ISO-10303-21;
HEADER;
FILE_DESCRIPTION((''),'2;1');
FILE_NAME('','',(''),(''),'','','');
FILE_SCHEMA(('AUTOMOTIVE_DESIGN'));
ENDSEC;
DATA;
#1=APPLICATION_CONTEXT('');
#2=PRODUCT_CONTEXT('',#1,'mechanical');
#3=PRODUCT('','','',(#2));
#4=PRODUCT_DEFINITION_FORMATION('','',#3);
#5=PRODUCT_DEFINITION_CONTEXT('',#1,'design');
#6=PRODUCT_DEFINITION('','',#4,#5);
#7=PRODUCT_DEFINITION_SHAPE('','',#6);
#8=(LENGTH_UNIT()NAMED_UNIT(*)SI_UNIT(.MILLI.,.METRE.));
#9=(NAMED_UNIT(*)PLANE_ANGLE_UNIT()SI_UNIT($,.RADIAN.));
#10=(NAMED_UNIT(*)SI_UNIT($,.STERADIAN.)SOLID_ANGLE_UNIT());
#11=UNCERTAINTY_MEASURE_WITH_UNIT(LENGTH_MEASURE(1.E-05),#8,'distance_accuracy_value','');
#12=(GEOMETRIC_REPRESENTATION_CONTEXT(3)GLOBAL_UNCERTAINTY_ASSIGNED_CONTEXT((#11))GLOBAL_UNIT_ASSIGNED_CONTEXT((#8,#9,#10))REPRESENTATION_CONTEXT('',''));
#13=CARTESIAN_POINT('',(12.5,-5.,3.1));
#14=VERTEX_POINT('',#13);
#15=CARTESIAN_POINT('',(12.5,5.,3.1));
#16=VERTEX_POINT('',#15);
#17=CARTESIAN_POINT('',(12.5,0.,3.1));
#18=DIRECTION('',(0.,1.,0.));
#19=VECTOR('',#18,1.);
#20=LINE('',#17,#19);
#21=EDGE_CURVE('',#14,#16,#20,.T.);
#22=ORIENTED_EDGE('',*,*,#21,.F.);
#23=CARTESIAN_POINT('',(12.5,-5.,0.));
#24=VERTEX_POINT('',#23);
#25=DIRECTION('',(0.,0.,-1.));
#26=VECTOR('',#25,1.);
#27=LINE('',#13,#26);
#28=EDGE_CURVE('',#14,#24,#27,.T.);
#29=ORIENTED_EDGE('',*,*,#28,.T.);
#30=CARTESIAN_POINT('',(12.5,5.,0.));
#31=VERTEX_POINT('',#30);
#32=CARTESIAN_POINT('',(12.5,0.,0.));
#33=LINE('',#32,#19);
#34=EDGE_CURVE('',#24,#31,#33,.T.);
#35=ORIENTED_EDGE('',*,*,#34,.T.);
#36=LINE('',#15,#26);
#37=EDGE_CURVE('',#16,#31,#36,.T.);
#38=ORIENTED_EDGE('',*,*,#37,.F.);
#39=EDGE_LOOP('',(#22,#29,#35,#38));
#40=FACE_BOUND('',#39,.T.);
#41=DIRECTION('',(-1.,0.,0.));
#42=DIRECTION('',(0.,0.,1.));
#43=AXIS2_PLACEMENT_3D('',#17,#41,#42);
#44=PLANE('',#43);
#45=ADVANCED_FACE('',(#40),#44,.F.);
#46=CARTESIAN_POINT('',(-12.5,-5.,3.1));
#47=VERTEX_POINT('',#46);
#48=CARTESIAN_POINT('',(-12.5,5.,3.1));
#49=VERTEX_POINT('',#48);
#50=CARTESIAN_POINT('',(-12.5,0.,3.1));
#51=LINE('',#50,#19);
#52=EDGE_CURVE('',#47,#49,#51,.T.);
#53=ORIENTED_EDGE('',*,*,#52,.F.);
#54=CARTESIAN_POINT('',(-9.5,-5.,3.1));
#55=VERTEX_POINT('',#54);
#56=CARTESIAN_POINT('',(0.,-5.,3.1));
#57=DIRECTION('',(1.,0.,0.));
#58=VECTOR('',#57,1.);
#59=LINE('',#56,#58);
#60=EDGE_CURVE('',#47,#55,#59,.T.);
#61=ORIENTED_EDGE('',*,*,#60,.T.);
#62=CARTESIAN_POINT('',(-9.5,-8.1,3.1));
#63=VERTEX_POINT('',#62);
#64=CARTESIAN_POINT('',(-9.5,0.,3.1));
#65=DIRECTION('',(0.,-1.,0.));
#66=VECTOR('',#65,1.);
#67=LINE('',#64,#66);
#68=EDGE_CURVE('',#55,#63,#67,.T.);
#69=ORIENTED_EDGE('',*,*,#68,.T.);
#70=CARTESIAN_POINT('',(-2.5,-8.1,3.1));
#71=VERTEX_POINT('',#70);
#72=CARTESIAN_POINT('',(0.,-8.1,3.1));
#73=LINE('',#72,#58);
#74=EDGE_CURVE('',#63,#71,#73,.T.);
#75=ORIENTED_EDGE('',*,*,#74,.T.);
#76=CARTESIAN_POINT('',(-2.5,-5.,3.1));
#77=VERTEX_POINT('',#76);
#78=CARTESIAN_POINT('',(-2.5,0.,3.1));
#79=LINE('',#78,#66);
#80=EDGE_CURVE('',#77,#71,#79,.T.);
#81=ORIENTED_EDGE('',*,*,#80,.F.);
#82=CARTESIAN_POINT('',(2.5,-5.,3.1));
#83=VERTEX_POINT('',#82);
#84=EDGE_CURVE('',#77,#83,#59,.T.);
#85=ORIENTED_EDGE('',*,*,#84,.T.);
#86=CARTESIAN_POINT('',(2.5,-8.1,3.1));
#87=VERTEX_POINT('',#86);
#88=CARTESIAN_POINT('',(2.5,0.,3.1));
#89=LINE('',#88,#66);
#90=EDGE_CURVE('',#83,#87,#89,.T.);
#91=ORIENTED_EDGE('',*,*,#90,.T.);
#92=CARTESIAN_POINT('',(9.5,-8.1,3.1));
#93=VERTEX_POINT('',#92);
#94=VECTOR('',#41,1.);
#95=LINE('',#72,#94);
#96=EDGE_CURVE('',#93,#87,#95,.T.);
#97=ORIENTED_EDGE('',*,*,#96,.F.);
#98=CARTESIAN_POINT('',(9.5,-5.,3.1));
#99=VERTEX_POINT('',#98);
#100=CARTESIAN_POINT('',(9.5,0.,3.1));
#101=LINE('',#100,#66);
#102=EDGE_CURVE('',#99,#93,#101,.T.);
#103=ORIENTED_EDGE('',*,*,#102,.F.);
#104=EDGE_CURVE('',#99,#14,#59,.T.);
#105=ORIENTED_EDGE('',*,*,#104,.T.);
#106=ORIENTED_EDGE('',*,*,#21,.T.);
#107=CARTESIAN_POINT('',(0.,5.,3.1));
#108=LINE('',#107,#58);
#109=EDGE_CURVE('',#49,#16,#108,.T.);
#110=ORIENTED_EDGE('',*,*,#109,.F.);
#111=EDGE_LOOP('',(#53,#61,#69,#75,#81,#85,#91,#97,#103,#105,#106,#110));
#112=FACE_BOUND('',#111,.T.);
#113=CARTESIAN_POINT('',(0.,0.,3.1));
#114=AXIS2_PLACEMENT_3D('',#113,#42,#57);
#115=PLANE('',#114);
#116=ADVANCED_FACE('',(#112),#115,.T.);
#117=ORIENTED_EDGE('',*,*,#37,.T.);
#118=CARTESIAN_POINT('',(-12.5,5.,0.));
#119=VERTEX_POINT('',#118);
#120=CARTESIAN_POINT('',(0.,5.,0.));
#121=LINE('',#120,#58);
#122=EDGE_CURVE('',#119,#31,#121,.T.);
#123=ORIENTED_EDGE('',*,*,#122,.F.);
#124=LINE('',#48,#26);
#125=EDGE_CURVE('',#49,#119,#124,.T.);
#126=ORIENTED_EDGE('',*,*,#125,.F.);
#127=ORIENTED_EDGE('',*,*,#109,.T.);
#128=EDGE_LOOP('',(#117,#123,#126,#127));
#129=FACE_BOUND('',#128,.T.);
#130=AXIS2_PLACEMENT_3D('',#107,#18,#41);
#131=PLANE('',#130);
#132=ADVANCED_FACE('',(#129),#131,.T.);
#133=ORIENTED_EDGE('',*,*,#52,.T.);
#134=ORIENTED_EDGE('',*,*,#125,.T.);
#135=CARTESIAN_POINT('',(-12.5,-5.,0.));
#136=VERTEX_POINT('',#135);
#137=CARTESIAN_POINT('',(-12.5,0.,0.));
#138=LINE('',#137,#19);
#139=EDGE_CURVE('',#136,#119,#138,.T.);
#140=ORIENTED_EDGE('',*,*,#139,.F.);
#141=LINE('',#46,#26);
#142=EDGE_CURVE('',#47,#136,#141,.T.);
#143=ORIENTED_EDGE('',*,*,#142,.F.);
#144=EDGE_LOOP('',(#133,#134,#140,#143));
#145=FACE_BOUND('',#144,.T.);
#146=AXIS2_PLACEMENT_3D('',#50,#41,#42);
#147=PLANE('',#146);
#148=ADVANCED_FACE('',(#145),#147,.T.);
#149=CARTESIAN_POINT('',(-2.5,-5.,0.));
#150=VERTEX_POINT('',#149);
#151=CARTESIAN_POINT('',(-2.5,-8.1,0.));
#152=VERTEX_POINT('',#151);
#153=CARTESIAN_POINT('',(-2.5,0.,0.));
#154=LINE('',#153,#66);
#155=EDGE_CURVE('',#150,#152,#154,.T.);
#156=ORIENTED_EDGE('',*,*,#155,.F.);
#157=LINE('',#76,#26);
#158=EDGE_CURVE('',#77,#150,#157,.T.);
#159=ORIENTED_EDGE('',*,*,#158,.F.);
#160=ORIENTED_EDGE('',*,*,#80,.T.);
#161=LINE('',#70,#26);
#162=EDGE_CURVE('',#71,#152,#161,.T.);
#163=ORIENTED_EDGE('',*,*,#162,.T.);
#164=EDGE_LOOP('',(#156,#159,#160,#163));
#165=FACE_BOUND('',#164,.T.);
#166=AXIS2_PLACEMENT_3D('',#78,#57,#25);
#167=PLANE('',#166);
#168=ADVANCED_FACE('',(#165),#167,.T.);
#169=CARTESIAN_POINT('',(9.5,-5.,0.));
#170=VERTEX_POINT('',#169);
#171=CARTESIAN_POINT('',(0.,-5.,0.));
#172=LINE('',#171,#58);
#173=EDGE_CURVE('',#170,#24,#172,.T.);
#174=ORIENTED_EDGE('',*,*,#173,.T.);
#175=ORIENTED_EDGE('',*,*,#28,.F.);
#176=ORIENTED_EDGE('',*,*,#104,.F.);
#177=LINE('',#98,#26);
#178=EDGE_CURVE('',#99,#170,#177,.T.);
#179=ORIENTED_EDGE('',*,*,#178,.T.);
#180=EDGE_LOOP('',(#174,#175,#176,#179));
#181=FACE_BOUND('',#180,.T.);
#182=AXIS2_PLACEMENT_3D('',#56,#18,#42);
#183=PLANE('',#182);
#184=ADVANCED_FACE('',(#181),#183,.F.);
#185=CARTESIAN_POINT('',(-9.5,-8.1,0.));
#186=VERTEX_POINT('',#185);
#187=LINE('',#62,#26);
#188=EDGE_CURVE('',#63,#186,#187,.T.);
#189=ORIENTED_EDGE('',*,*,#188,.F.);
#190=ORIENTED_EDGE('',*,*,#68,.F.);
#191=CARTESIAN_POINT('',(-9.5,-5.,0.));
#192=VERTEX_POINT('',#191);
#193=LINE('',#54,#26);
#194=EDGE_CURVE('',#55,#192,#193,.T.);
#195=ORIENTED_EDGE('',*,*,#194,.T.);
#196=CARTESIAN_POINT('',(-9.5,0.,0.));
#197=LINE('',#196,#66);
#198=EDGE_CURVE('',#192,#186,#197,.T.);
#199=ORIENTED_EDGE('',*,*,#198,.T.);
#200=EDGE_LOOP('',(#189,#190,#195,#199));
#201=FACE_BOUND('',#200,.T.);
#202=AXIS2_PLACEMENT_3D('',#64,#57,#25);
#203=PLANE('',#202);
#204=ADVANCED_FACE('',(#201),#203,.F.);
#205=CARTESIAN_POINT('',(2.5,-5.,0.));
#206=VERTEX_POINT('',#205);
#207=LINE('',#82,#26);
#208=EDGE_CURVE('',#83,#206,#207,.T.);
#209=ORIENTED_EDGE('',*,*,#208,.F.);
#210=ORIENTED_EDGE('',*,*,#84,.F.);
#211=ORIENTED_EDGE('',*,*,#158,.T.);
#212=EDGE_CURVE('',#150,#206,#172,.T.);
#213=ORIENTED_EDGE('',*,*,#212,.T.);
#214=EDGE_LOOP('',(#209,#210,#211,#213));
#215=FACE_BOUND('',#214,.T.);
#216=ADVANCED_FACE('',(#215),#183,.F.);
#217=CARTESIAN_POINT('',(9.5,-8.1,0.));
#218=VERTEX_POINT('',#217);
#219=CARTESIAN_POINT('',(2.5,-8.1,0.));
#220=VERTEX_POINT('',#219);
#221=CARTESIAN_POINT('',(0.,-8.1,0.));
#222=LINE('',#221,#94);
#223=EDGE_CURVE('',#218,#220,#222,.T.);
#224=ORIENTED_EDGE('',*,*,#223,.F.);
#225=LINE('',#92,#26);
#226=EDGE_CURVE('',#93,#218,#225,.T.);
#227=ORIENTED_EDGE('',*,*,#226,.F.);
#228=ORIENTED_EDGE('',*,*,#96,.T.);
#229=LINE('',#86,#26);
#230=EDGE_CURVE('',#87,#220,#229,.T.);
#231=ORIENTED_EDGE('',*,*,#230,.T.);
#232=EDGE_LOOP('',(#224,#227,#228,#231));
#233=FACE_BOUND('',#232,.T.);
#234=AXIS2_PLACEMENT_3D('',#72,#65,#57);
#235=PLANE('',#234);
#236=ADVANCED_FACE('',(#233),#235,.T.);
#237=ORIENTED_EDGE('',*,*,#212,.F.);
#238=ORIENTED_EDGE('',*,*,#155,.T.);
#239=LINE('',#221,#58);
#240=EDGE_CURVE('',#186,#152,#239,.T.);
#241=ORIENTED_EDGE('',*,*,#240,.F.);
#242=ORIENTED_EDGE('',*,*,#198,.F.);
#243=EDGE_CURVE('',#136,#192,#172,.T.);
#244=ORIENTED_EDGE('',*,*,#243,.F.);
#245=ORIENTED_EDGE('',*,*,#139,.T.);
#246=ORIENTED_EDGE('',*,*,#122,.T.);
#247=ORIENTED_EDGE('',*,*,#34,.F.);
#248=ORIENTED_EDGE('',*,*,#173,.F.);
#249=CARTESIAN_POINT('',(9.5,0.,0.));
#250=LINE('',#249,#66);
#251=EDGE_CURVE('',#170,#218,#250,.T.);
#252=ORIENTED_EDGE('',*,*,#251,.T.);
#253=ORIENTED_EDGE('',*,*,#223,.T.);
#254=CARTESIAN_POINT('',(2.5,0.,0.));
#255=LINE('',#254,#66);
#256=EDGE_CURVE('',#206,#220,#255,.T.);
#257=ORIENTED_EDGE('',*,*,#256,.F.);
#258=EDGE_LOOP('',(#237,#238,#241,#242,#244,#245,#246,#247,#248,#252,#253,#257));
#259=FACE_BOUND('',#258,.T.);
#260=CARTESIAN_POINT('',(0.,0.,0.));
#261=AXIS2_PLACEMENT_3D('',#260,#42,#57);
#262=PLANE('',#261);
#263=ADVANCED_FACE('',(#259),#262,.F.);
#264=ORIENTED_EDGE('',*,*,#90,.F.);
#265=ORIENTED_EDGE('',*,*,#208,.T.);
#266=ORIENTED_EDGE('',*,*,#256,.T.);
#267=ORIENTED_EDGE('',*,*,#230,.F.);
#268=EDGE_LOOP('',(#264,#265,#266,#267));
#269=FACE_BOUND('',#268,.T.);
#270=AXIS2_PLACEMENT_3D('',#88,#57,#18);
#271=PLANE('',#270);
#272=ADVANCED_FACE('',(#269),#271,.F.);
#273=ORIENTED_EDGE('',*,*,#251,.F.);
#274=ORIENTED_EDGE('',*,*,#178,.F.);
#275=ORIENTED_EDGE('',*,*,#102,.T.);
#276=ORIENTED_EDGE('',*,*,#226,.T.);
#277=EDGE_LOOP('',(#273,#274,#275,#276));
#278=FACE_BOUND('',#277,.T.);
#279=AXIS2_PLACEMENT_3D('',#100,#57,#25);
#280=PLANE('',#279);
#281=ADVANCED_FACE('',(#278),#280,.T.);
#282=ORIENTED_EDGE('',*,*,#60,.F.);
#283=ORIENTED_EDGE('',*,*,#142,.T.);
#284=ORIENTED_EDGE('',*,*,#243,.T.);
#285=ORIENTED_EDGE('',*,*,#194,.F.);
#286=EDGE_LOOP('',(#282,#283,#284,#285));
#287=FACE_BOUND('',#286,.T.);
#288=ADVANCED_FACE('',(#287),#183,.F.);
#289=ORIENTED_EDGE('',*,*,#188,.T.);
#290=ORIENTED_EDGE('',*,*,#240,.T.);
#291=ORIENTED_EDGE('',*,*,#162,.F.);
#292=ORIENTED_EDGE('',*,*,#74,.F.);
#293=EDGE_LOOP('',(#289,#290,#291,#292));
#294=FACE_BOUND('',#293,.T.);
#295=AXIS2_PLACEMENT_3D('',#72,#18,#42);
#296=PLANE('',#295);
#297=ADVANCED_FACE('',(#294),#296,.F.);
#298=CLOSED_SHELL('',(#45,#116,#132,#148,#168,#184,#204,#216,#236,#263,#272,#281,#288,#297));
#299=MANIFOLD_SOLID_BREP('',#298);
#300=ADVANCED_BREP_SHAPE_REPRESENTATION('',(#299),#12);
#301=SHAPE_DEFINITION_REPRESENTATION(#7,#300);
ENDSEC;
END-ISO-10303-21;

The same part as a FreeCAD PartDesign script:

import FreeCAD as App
import Part
import Sketcher
from FreeCAD import Vector
Q = App.Units.Quantity

doc = App.newDocument("Part")
body = doc.addObject("PartDesign::Body", "Body")

# Sketch on XY plane
sketch1 = doc.addObject("Sketcher::SketchObject", "Sketch")
body.addObject(sketch1)
sketch1.AttachmentSupport = (doc.XY_Plane, [""])
sketch1.MapMode = "FlatFace"
sketch1.addGeometry(Part.LineSegment(Vector(-12.5, 5, 0), Vector(-12.5, -5, 0)), False)
sketch1.addGeometry(Part.LineSegment(Vector(-12.5, -5, 0), Vector(-9.5, -5, 0)), False)
sketch1.addGeometry(Part.LineSegment(Vector(-9.5, -5, 0), Vector(-9.5, -8.1, 0)), False)
sketch1.addGeometry(Part.LineSegment(Vector(-9.5, -8.1, 0), Vector(-2.5, -8.1, 0)), False)
sketch1.addGeometry(Part.LineSegment(Vector(-2.5, -8.1, 0), Vector(-2.5, -5, 0)), False)
sketch1.addGeometry(Part.LineSegment(Vector(-2.5, -5, 0), Vector(2.5, -5, 0)), False)
sketch1.addGeometry(Part.LineSegment(Vector(2.5, -5, 0), Vector(2.5, -8.1, 0)), False)
sketch1.addGeometry(Part.LineSegment(Vector(2.5, -8.1, 0), Vector(9.5, -8.1, 0)), False)
sketch1.addGeometry(Part.LineSegment(Vector(9.5, -8.1, 0), Vector(9.5, -5, 0)), False)
sketch1.addGeometry(Part.LineSegment(Vector(9.5, -5, 0), Vector(12.5, -5, 0)), False)
sketch1.addGeometry(Part.LineSegment(Vector(12.5, -5, 0), Vector(12.5, 5, 0)), False)
sketch1.addGeometry(Part.LineSegment(Vector(12.5, 5, 0), Vector(-12.5, 5, 0)), False)
sketch1.addConstraint(Sketcher.Constraint("Coincident", 0, 2, 1, 1))
sketch1.addConstraint(Sketcher.Constraint("Coincident", 1, 2, 2, 1))
sketch1.addConstraint(Sketcher.Constraint("Coincident", 2, 2, 3, 1))
sketch1.addConstraint(Sketcher.Constraint("Coincident", 3, 2, 4, 1))
sketch1.addConstraint(Sketcher.Constraint("Coincident", 4, 2, 5, 1))
sketch1.addConstraint(Sketcher.Constraint("Coincident", 5, 2, 6, 1))
sketch1.addConstraint(Sketcher.Constraint("Coincident", 6, 2, 7, 1))
sketch1.addConstraint(Sketcher.Constraint("Coincident", 7, 2, 8, 1))
sketch1.addConstraint(Sketcher.Constraint("Coincident", 8, 2, 9, 1))
sketch1.addConstraint(Sketcher.Constraint("Coincident", 9, 2, 10, 1))
sketch1.addConstraint(Sketcher.Constraint("Coincident", 10, 2, 11, 1))
sketch1.addConstraint(Sketcher.Constraint("Coincident", 11, 2, 0, 1))
sketch1.addConstraint(Sketcher.Constraint("Vertical", 0))
sketch1.addConstraint(Sketcher.Constraint("Horizontal", 1))
sketch1.addConstraint(Sketcher.Constraint("Vertical", 2))
sketch1.addConstraint(Sketcher.Constraint("Horizontal", 3))
sketch1.addConstraint(Sketcher.Constraint("Vertical", 4))
sketch1.addConstraint(Sketcher.Constraint("Horizontal", 5))
sketch1.addConstraint(Sketcher.Constraint("Vertical", 6))
sketch1.addConstraint(Sketcher.Constraint("Horizontal", 7))
sketch1.addConstraint(Sketcher.Constraint("Vertical", 8))
sketch1.addConstraint(Sketcher.Constraint("Horizontal", 9))
sketch1.addConstraint(Sketcher.Constraint("Vertical", 10))
sketch1.addConstraint(Sketcher.Constraint("Horizontal", 11))
sketch1.addConstraint(Sketcher.Constraint("Symmetric", 0, 2, 10, 2, -1, 1))
sketch1.addConstraint(Sketcher.Constraint("Symmetric", 3, 2, 6, 2, -2))
sketch1.addConstraint(Sketcher.Constraint("Symmetric", 1, 2, 8, 2, -2))
sketch1.addConstraint(Sketcher.Constraint("Horizontal", 1, 2, 4, 2))
sketch1.addConstraint(Sketcher.Constraint("DistanceX", 1, 1, 1, 2, Q("3 mm")))
sketch1.addConstraint(Sketcher.Constraint("DistanceX", 3, 1, 3, 2, Q("7 mm")))
sketch1.addConstraint(Sketcher.Constraint("DistanceX", 5, 1, 5, 2, Q("5 mm")))
sketch1.addConstraint(Sketcher.Constraint("DistanceY", 0, 2, 0, 1, Q("10 mm")))
sketch1.addConstraint(Sketcher.Constraint("DistanceY", 2, 2, 2, 1, Q("3.1 mm")))
pad1 = doc.addObject("PartDesign::Pad", "Pad")
body.addObject(pad1)
pad1.Profile = sketch1
pad1.Length = 3.1

doc.recompute()
